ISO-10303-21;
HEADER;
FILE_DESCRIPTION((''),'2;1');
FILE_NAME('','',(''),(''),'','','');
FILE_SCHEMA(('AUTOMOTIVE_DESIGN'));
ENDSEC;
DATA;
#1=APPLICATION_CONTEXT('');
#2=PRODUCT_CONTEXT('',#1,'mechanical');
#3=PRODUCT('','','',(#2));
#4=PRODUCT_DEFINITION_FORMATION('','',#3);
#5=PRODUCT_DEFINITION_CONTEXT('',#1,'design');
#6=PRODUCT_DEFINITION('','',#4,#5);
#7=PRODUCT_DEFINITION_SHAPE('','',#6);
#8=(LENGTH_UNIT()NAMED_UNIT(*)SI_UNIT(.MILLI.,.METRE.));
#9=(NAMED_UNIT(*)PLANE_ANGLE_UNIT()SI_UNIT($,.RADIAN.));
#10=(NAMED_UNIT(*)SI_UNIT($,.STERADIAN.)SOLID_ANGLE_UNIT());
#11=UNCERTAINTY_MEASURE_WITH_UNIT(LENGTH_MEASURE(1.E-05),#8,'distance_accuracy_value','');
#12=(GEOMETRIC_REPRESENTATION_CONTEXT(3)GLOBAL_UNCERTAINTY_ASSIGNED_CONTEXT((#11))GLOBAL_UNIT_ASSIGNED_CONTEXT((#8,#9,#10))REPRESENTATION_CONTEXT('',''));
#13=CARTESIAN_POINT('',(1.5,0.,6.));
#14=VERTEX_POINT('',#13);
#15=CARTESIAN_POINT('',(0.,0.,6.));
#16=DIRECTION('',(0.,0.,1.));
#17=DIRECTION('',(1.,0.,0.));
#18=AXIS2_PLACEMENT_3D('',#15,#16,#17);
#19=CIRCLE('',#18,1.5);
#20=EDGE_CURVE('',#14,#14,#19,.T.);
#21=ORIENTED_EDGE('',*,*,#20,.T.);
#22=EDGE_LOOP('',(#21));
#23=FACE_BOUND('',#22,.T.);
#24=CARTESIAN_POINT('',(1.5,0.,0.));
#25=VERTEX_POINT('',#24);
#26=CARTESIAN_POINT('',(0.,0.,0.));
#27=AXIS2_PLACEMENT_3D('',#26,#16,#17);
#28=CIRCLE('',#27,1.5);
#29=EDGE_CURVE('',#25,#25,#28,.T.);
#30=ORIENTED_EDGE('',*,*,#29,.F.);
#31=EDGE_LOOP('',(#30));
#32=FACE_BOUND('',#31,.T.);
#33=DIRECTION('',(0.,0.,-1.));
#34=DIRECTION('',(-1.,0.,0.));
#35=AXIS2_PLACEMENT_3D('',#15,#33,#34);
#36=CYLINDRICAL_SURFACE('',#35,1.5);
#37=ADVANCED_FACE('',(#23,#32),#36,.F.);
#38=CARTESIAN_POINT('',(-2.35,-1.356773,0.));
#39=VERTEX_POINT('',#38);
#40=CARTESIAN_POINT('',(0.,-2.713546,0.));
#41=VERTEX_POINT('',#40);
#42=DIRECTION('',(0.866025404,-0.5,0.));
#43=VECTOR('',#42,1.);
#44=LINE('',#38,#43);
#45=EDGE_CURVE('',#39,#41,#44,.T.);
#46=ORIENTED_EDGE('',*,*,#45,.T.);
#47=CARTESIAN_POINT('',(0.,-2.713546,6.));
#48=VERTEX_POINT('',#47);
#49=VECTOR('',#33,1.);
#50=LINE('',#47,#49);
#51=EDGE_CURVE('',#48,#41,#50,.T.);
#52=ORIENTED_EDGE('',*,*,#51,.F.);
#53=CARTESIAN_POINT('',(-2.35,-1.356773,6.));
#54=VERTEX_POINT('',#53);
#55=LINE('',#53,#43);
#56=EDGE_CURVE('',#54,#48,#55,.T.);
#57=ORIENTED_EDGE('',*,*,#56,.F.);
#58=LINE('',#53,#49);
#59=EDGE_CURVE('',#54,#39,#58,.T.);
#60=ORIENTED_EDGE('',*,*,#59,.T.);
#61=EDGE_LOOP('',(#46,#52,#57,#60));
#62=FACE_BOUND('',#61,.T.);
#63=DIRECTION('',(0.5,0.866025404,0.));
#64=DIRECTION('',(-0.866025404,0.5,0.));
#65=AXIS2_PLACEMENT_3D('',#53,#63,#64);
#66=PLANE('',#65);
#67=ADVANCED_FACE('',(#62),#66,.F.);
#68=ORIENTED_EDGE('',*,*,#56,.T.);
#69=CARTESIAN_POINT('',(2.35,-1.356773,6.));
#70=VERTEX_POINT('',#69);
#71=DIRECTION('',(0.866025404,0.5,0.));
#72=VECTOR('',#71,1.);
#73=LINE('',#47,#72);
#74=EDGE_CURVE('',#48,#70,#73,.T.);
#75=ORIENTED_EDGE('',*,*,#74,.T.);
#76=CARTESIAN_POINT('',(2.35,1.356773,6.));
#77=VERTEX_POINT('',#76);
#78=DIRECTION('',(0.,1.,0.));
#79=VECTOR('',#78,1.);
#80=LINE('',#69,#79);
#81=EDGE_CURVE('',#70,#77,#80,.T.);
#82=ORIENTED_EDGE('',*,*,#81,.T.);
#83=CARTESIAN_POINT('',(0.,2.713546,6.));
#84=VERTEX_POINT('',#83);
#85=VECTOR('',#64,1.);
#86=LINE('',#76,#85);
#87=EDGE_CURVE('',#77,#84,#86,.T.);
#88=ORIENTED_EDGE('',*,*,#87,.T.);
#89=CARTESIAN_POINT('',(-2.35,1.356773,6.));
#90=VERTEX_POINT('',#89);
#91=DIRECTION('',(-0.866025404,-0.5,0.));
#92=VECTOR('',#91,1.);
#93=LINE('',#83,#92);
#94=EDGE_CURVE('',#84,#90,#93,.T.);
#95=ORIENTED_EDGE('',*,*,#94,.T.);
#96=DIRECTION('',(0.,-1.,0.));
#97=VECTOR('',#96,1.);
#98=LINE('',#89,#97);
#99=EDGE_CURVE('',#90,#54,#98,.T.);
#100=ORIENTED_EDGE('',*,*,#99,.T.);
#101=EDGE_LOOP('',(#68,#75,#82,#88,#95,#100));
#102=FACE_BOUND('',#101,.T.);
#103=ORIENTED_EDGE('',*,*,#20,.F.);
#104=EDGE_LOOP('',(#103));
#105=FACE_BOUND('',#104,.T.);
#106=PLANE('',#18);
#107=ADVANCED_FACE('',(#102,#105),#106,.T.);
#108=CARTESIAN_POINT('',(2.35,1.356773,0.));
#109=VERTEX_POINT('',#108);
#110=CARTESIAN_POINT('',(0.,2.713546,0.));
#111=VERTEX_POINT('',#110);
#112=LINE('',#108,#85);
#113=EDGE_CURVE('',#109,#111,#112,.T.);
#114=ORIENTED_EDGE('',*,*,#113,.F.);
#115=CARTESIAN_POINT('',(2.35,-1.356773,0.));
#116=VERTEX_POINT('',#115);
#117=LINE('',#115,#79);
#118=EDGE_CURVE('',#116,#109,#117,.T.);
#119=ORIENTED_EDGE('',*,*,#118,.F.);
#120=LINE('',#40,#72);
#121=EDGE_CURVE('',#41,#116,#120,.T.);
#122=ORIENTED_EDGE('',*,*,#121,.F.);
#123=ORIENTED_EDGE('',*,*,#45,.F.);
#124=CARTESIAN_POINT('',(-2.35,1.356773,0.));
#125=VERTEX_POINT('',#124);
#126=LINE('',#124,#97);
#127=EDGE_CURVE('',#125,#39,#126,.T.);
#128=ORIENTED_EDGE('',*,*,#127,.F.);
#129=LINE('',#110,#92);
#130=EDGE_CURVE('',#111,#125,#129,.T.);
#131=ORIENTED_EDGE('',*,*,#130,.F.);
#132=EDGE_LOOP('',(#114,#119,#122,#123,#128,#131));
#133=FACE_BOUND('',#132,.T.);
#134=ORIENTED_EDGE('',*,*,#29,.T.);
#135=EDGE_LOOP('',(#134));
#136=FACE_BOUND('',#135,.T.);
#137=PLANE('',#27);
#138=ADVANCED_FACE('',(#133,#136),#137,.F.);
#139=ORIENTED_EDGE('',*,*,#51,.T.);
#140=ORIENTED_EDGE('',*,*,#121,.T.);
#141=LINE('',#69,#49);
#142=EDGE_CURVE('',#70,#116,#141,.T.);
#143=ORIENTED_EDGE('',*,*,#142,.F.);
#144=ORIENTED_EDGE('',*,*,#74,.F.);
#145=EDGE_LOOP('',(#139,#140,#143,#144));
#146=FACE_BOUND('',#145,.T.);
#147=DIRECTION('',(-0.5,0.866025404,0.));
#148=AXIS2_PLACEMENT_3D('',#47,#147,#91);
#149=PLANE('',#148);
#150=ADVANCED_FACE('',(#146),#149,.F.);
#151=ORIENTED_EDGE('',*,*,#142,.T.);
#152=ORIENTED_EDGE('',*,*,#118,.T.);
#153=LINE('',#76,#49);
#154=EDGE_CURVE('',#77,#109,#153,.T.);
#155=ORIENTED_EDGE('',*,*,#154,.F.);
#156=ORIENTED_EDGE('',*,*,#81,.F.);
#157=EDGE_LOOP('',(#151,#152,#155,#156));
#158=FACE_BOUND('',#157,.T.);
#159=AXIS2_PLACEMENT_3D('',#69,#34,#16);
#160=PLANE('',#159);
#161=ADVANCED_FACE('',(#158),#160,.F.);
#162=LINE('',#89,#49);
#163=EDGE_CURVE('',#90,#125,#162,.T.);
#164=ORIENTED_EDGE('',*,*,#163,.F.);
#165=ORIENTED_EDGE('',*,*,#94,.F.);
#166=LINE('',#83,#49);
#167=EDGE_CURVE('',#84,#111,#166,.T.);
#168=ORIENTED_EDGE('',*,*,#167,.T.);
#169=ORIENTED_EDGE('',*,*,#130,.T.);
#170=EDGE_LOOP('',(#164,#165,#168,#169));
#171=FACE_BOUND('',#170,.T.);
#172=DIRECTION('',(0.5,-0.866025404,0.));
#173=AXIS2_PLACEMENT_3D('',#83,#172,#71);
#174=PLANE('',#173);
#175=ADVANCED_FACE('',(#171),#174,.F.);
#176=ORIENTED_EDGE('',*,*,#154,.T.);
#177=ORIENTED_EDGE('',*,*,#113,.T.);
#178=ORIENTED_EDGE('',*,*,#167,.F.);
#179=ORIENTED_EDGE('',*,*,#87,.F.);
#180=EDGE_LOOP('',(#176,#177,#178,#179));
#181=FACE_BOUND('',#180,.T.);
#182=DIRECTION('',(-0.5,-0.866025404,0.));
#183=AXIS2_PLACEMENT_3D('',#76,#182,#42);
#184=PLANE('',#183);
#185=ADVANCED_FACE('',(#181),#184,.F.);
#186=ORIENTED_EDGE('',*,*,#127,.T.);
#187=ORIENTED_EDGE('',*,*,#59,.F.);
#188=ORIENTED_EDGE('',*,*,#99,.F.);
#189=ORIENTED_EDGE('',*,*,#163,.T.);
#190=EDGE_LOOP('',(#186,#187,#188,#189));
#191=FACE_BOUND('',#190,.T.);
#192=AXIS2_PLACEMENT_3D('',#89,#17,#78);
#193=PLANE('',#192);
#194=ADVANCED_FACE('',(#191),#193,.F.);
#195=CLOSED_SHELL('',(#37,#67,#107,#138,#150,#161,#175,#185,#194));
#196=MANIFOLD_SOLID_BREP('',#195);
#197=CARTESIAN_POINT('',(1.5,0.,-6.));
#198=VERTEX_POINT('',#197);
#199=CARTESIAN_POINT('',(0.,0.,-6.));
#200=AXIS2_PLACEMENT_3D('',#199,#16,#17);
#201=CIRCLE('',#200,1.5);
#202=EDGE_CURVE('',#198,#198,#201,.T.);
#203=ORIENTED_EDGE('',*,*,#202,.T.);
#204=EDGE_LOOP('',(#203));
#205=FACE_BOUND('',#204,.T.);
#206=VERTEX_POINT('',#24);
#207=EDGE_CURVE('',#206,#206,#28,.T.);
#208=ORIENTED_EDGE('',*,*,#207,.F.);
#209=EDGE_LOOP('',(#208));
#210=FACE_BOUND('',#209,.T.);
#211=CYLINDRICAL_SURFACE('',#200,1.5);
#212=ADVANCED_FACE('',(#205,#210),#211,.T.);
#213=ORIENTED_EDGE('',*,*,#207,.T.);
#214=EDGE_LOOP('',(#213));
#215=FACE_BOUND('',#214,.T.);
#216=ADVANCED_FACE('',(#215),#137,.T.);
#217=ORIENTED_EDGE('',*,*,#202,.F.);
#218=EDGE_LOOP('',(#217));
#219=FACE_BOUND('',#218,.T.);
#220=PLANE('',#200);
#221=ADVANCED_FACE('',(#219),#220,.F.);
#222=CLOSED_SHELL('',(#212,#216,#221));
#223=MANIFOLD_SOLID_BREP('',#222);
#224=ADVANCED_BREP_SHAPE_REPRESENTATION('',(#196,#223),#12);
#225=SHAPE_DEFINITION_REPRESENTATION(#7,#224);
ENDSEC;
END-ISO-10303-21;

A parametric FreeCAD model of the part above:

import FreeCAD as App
import Part
import Sketcher

V = App.Vector
Q = App.Units.Quantity


def add_polygon(sketch, points):
    """Adds a closed chain of lines whose ends are joined by coincident constraints."""
    first, n = sketch.GeometryCount, len(points)
    for a, b in zip(points, points[1:] + points[:1]):
        sketch.addGeometry(Part.LineSegment(App.Vector(*a, 0), App.Vector(*b, 0)), False)
    for i in range(n):
        sketch.addConstraint(Sketcher.Constraint("Coincident", first + i, 2, first + (i + 1) % n, 1))

doc = App.newDocument("Part")
params = doc.addObject("Spreadsheet::Sheet", "Params")
for row, (alias, value) in enumerate([
    ("sketch1_diameter", "3 mm"),
    ("pad1_length", "6 mm"),
    ("sketch2_diameter", "3 mm"),
    ("pad2_length", "6 mm"),
], start=1):
    params.set(f"A{row}", alias)
    params.set(f"B{row}", "=" + value)
    params.setAlias(f"B{row}", alias)

body = doc.addObject("PartDesign::Body", "Body")

sketch1 = doc.addObject("Sketcher::SketchObject", "Sketch")
body.addObject(sketch1)
sketch1.AttachmentSupport = (doc.XY_Plane, [""])
sketch1.MapMode = "FlatFace"
add_polygon(sketch1, [(0, 2.7), (-2.4, 1.4), (-2.4, -1.4), (0, -2.7), (2.4, -1.4), (2.4, 1.4)])
sketch1.addGeometry(Part.Circle(V(0, 0, 0), V(0, 0, 1), 1.5), False)
sketch1.addConstraint([
    Sketcher.Constraint("Vertical", 1),
    Sketcher.Constraint("Vertical", 4),
    Sketcher.Constraint("Coincident", 6, 3, -1, 1),
    Sketcher.Constraint("Symmetric", 0, 2, 3, 2, -1, 1),
    Sketcher.Constraint("Symmetric", 2, 2, 5, 2, -1, 1),
    Sketcher.Constraint("PointOnObject", 2, 2, -2),
    Sketcher.Constraint("Parallel", 2, 5),
    Sketcher.Constraint("Horizontal", 1, 2, 3, 2),
    Sketcher.Constraint("Diameter", 6, Q("3 mm")),
    Sketcher.Constraint("Angle", 0, Q("-150 deg")),
    Sketcher.Constraint("DistanceX", 1, 2, 3, 2, Q("4.7 mm")),
    Sketcher.Constraint("DistanceY", 1, 2, 1, 1, Q("2.713546 mm")),
])
sketch1.setExpression("Constraints[14]", "Params.sketch1_diameter")
pad1 = doc.addObject("PartDesign::Pad", "Pad")
body.addObject(pad1)
pad1.Profile = sketch1
pad1.setExpression("Length", "Params.pad1_length")
body2 = doc.addObject("PartDesign::Body", "Body001")

sketch2 = doc.addObject("Sketcher::SketchObject", "Sketch001")
body2.addObject(sketch2)
sketch2.AttachmentSupport = (doc.getObject("XY_Plane001"), [""])
sketch2.MapMode = "FlatFace"
sketch2.addGeometry(Part.Circle(V(0, 0, 0), V(0, 0, 1), 1.5), False)
sketch2.addConstraint([
    Sketcher.Constraint("Coincident", 0, 3, -1, 1),
    Sketcher.Constraint("Diameter", 0, Q("3 mm")),
])
sketch2.setExpression("Constraints[1]", "Params.sketch2_diameter")
pad2 = doc.addObject("PartDesign::Pad", "Pad001")
body2.addObject(pad2)
pad2.Profile = sketch2
pad2.setExpression("Length", "Params.pad2_length")
pad2.Reversed = True

doc.recompute()
